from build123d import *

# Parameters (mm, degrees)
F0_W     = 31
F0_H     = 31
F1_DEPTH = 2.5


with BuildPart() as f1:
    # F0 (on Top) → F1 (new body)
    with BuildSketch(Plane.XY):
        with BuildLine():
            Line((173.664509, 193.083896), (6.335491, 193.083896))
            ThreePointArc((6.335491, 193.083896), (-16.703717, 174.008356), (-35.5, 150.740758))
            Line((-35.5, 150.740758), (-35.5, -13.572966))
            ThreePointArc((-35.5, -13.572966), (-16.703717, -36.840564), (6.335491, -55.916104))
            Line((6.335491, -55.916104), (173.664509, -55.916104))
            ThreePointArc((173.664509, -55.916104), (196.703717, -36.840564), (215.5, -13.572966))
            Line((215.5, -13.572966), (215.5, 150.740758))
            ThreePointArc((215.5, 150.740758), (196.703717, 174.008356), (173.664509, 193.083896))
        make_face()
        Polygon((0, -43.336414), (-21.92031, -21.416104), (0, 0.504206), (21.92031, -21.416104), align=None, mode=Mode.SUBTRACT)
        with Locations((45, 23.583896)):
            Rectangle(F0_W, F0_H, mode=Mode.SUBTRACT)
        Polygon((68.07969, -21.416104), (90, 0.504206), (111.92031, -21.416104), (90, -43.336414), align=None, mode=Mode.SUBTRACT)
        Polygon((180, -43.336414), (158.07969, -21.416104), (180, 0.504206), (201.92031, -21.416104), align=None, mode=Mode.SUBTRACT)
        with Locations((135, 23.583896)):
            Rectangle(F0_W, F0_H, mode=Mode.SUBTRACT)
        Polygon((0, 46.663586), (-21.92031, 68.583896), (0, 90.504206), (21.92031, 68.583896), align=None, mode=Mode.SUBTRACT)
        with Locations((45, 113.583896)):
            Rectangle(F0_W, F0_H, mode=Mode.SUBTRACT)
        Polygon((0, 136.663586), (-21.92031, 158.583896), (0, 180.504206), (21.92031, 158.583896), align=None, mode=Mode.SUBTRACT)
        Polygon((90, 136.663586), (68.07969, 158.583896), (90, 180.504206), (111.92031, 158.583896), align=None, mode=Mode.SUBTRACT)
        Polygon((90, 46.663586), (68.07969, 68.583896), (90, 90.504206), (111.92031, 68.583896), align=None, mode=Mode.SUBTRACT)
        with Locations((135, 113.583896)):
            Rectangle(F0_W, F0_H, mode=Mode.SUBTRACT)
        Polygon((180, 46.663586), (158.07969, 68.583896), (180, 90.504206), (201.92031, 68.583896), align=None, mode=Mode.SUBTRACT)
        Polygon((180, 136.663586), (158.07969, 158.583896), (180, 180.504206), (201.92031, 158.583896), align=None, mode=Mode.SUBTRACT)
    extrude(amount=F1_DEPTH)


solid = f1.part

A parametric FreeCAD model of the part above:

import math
import FreeCAD as App
import Part
import Sketcher


def add_polygon(sketch, points):
    """Adds a closed chain of lines whose ends are joined by coincident constraints."""
    first, n = sketch.GeometryCount, len(points)
    for a, b in zip(points, points[1:] + points[:1]):
        sketch.addGeometry(Part.LineSegment(App.Vector(*a, 0), App.Vector(*b, 0)), False)
    for i in range(n):
        sketch.addConstraint(Sketcher.Constraint("Coincident", first + i, 2, first + (i + 1) % n, 1))

doc = App.newDocument("Part")
body = doc.addObject("PartDesign::Body", "Body")

sketch1 = body.newObject("Sketcher::SketchObject", "Sketch")
sketch1.AttachmentSupport = (doc.getObject("XY_Plane"), [""])
sketch1.MapMode = "FlatFace"
sketch1.addGeometry(Part.LineSegment(App.Vector(174, 193, 0), App.Vector(6, 193, 0)), False)
sketch1.addGeometry(Part.ArcOfCircle(Part.Circle(App.Vector(90, 69, 0), App.Vector(0, 0, 1), 150), math.radians(124), math.radians(147)), False)
sketch1.addGeometry(Part.LineSegment(App.Vector(-36, 151, 0), App.Vector(-36, -14, 0)), False)
sketch1.addGeometry(Part.ArcOfCircle(Part.Circle(App.Vector(90, 69, 0), App.Vector(0, 0, 1), 150), math.radians(-147), math.radians(-124)), False)
sketch1.addGeometry(Part.LineSegment(App.Vector(6, -56, 0), App.Vector(174, -56, 0)), False)
sketch1.addGeometry(Part.ArcOfCircle(Part.Circle(App.Vector(90, 69, 0), App.Vector(0, 0, 1), 150), math.radians(-56), math.radians(-33)), False)
sketch1.addGeometry(Part.LineSegment(App.Vector(216, -14, 0), App.Vector(216, 151, 0)), False)
sketch1.addGeometry(Part.ArcOfCircle(Part.Circle(App.Vector(90, 69, 0), App.Vector(0, 0, 1), 150), math.radians(33), math.radians(56)), False)
add_polygon(sketch1, [(22, -21), (0, -43), (-22, -21), (0, 1)])
add_polygon(sketch1, [(60, 8), (30, 8), (30, 39), (60, 39)])
add_polygon(sketch1, [(90, -43), (68, -21), (90, 1), (112, -21)])
add_polygon(sketch1, [(202, -21), (180, -43), (158, -21), (180, 1)])
add_polygon(sketch1, [(150, 8), (120, 8), (120, 39), (150, 39)])
add_polygon(sketch1, [(22, 69), (0, 47), (-22, 69), (0, 91)])
add_polygon(sketch1, [(60, 98), (30, 98), (30, 129), (60, 129)])
add_polygon(sketch1, [(22, 159), (0, 137), (-22, 159), (0, 181)])
add_polygon(sketch1, [(112, 69), (90, 47), (68, 69), (90, 91)])
add_polygon(sketch1, [(150, 98), (120, 98), (120, 129), (150, 129)])
add_polygon(sketch1, [(202, 69), (180, 47), (158, 69), (180, 91)])
add_polygon(sketch1, [(112, 159), (90, 137), (68, 159), (90, 181)])
add_polygon(sketch1, [(202, 159), (180, 137), (158, 159), (180, 181)])
sketch1.addConstraint(Sketcher.Constraint("Coincident", 0, 2, 1, 1))
sketch1.addConstraint(Sketcher.Constraint("Coincident", 1, 2, 2, 1))
sketch1.addConstraint(Sketcher.Constraint("Coincident", 2, 2, 3, 1))
sketch1.addConstraint(Sketcher.Constraint("Coincident", 3, 2, 4, 1))
sketch1.addConstraint(Sketcher.Constraint("Coincident", 4, 2, 5, 1))
sketch1.addConstraint(Sketcher.Constraint("Coincident", 5, 2, 6, 1))
sketch1.addConstraint(Sketcher.Constraint("Coincident", 6, 2, 7, 1))
sketch1.addConstraint(Sketcher.Constraint("Coincident", 7, 2, 0, 1))
sketch1.addConstraint(Sketcher.Constraint("Horizontal", 0))
sketch1.addConstraint(Sketcher.Constraint("Vertical", 2))
sketch1.addConstraint(Sketcher.Constraint("Horizontal", 4))
sketch1.addConstraint(Sketcher.Constraint("Vertical", 6))
sketch1.addConstraint(Sketcher.Constraint("Horizontal", 12))
sketch1.addConstraint(Sketcher.Constraint("Vertical", 13))
sketch1.addConstraint(Sketcher.Constraint("Horizontal", 14))
sketch1.addConstraint(Sketcher.Constraint("Vertical", 15))
sketch1.addConstraint(Sketcher.Constraint("Horizontal", 24))
sketch1.addConstraint(Sketcher.Constraint("Vertical", 25))
sketch1.addConstraint(Sketcher.Constraint("Horizontal", 26))
sketch1.addConstraint(Sketcher.Constraint("Vertical", 27))
sketch1.addConstraint(Sketcher.Constraint("Horizontal", 32))
sketch1.addConstraint(Sketcher.Constraint("Vertical", 33))
sketch1.addConstraint(Sketcher.Constraint("Horizontal", 34))
sketch1.addConstraint(Sketcher.Constraint("Vertical", 35))
sketch1.addConstraint(Sketcher.Constraint("Horizontal", 44))
sketch1.addConstraint(Sketcher.Constraint("Vertical", 45))
sketch1.addConstraint(Sketcher.Constraint("Horizontal", 46))
sketch1.addConstraint(Sketcher.Constraint("Vertical", 47))
sketch1.addConstraint(Sketcher.Constraint("Coincident", 3, 3, 1, 3))
sketch1.addConstraint(Sketcher.Constraint("Coincident", 5, 3, 3, 3))
sketch1.addConstraint(Sketcher.Constraint("Coincident", 7, 3, 1, 3))
sketch1.addConstraint(Sketcher.Constraint("Equal", 1, 3))
sketch1.addConstraint(Sketcher.Constraint("Equal", 3, 5))
sketch1.addConstraint(Sketcher.Constraint("Equal", 5, 7))
sketch1.addConstraint(Sketcher.Constraint("Symmetric", 9, 2, 11, 2, -2))
sketch1.addConstraint(Sketcher.Constraint("Symmetric", 29, 2, 31, 2, -2))
sketch1.addConstraint(Sketcher.Constraint("Symmetric", 37, 2, 39, 2, -2))
sketch1.addConstraint(Sketcher.Constraint("PointOnObject", 8, 2, -2))
sketch1.addConstraint(Sketcher.Constraint("PointOnObject", 10, 2, -2))
sketch1.addConstraint(Sketcher.Constraint("PointOnObject", 28, 2, -2))
sketch1.addConstraint(Sketcher.Constraint("PointOnObject", 30, 2, -2))
sketch1.addConstraint(Sketcher.Constraint("PointOnObject", 36, 2, -2))
sketch1.addConstraint(Sketcher.Constraint("PointOnObject", 38, 2, -2))
sketch1.addConstraint(Sketcher.Constraint("Perpendicular", 8, 9))
sketch1.addConstraint(Sketcher.Constraint("Perpendicular", 9, 10))
sketch1.addConstraint(Sketcher.Constraint("Parallel", 11, 16))
sketch1.addConstraint(Sketcher.Constraint("Perpendicular", 16, 17))
sketch1.addConstraint(Sketcher.Constraint("Perpendicular", 17, 18))
sketch1.addConstraint(Sketcher.Constraint("Perpendicular", 18, 19))
sketch1.addConstraint(Sketcher.Constraint("Parallel", 19, 20))
sketch1.addConstraint(Sketcher.Constraint("Perpendicular", 20, 21))
sketch1.addConstraint(Sketcher.Constraint("Perpendicular", 21, 22))
sketch1.addConstraint(Sketcher.Constraint("Perpendicular", 22, 23))
sketch1.addConstraint(Sketcher.Constraint("Perpendicular", 23, 28))
sketch1.addConstraint(Sketcher.Constraint("Perpendicular", 29, 30))
sketch1.addConstraint(Sketcher.Constraint("Perpendicular", 31, 36))
sketch1.addConstraint(Sketcher.Constraint("Perpendicular", 37, 38))
sketch1.addConstraint(Sketcher.Constraint("Perpendicular", 39, 40))
sketch1.addConstraint(Sketcher.Constraint("Perpendicular", 40, 41))
sketch1.addConstraint(Sketcher.Constraint("Perpendicular", 41, 42))
sketch1.addConstraint(Sketcher.Constraint("Perpendicular", 42, 43))
sketch1.addConstraint(Sketcher.Constraint("Perpendicular", 43, 48))
sketch1.addConstraint(Sketcher.Constraint("Perpendicular", 48, 49))
sketch1.addConstraint(Sketcher.Constraint("Perpendicular", 49, 50))
sketch1.addConstraint(Sketcher.Constraint("Perpendicular", 50, 51))
sketch1.addConstraint(Sketcher.Constraint("Perpendicular", 51, 52))
sketch1.addConstraint(Sketcher.Constraint("Perpendicular", 52, 53))
sketch1.addConstraint(Sketcher.Constraint("Perpendicular", 53, 54))
sketch1.addConstraint(Sketcher.Constraint("Perpendicular", 54, 55))
sketch1.addConstraint(Sketcher.Constraint("Perpendicular", 55, 56))
sketch1.addConstraint(Sketcher.Constraint("Perpendicular", 56, 57))
sketch1.addConstraint(Sketcher.Constraint("Perpendicular", 57, 58))
sketch1.addConstraint(Sketcher.Constraint("Perpendicular", 58, 59))
sketch1.addConstraint(Sketcher.Constraint("Horizontal", 2, 2, 5, 2))
sketch1.addConstraint(Sketcher.Constraint("Horizontal", 11, 2, 16, 2))
sketch1.addConstraint(Sketcher.Constraint("Horizontal", 10, 2, 17, 2))
sketch1.addConstraint(Sketcher.Constraint("Horizontal", 16, 2, 18, 2))
sketch1.addConstraint(Sketcher.Constraint("Horizontal", 19, 2, 20, 2))
sketch1.addConstraint(Sketcher.Constraint("Horizontal", 18, 2, 21, 2))
sketch1.addConstraint(Sketcher.Constraint("Horizontal", 17, 2, 22, 2))
sketch1.addConstraint(Sketcher.Constraint("Horizontal", 15, 2, 24, 2))
sketch1.addConstraint(Sketcher.Constraint("Horizontal", 14, 2, 25, 2))
sketch1.addConstraint(Sketcher.Constraint("Horizontal", 28, 2, 40, 2))
sketch1.addConstraint(Sketcher.Constraint("Horizontal", 31, 2, 41, 2))
sketch1.addConstraint(Sketcher.Constraint("Horizontal", 30, 2, 42, 2))
sketch1.addConstraint(Sketcher.Constraint("Horizontal", 35, 2, 44, 2))
sketch1.addConstraint(Sketcher.Constraint("Horizontal", 34, 2, 45, 2))
sketch1.addConstraint(Sketcher.Constraint("Horizontal", 40, 2, 48, 2))
sketch1.addConstraint(Sketcher.Constraint("Horizontal", 43, 2, 49, 2))
sketch1.addConstraint(Sketcher.Constraint("Horizontal", 42, 2, 50, 2))
sketch1.addConstraint(Sketcher.Constraint("Horizontal", 36, 2, 52, 2))
sketch1.addConstraint(Sketcher.Constraint("Horizontal", 39, 2, 53, 2))
sketch1.addConstraint(Sketcher.Constraint("Horizontal", 38, 2, 54, 2))
sketch1.addConstraint(Sketcher.Constraint("Horizontal", 52, 2, 56, 2))
sketch1.addConstraint(Sketcher.Constraint("Horizontal", 55, 2, 57, 2))
sketch1.addConstraint(Sketcher.Constraint("Horizontal", 54, 2, 58, 2))
sketch1.addConstraint(Sketcher.Constraint("Vertical", 0, 2, 3, 2))
sketch1.addConstraint(Sketcher.Constraint("Vertical", 9, 2, 29, 2))
sketch1.addConstraint(Sketcher.Constraint("Vertical", 13, 2, 32, 2))
sketch1.addConstraint(Sketcher.Constraint("Vertical", 15, 2, 34, 2))
sketch1.addConstraint(Sketcher.Constraint("Vertical", 29, 2, 37, 2))
sketch1.addConstraint(Sketcher.Constraint("Vertical", 19, 2, 40, 2))
sketch1.addConstraint(Sketcher.Constraint("Vertical", 25, 2, 44, 2))
sketch1.addConstraint(Sketcher.Constraint("Vertical", 27, 2, 46, 2))
sketch1.addConstraint(Sketcher.Constraint("Vertical", 22, 2, 48, 2))
sketch1.addConstraint(Sketcher.Constraint("Vertical", 42, 2, 52, 2))
sketch1.addConstraint(Sketcher.Constraint("Vertical", 50, 2, 56, 2))
sketch1.addConstraint(Sketcher.Constraint("Equal", 14, 24))
sketch1.addConstraint(Sketcher.Constraint("Equal", 46, 13))
sketch1.addConstraint(Sketcher.Constraint("Equal", 27, 33))
sketch1.addConstraint(Sketcher.Constraint("DistanceX", 12, 2, 12, 1, 31.0))
sketch1.addConstraint(Sketcher.Constraint("Distance", 8, 31.0))
sketch1.addConstraint(Sketcher.Constraint("DistanceX", -1, 1, 17, 2, 90.0))
sketch1.addConstraint(Sketcher.Constraint("DistanceX", -1, 1, 20, 2, 180.0))
sketch1.addConstraint(Sketcher.Constraint("DistanceX", 1, 2, -1, 1, 35.5))
sketch1.addConstraint(Sketcher.Constraint("DistanceX", -1, 1, 5, 2, 215.5))
sketch1.addConstraint(Sketcher.Constraint("DistanceX", -1, 1, 12, 2, 29.5))
sketch1.addConstraint(Sketcher.Constraint("DistanceX", -1, 1, 24, 2, 119.5))
sketch1.addConstraint(Sketcher.Constraint("Radius", 1, 150.000005))
sketch1.addConstraint(Sketcher.Constraint("DistanceX", 0, 2, 0, 1, 167.329018))
sketch1.addConstraint(Sketcher.Constraint("DistanceY", -1, 1, 3, 3, 68.583899))
sketch1.addConstraint(Sketcher.Constraint("DistanceY", 8, 2, -1, 1, 43.336414))
sketch1.addConstraint(Sketcher.Constraint("DistanceY", -1, 1, 12, 2, 8.083896))
sketch1.addConstraint(Sketcher.Constraint("DistanceY", -1, 1, 28, 2, 46.663586))
sketch1.addConstraint(Sketcher.Constraint("DistanceY", -1, 1, 32, 2, 98.083896))
sketch1.addConstraint(Sketcher.Constraint("DistanceY", -1, 1, 36, 2, 136.663586))
pad1 = body.newObject("PartDesign::Pad", "Pad")
pad1.Profile = sketch1
pad1.Length = 2.5

doc.recompute()
